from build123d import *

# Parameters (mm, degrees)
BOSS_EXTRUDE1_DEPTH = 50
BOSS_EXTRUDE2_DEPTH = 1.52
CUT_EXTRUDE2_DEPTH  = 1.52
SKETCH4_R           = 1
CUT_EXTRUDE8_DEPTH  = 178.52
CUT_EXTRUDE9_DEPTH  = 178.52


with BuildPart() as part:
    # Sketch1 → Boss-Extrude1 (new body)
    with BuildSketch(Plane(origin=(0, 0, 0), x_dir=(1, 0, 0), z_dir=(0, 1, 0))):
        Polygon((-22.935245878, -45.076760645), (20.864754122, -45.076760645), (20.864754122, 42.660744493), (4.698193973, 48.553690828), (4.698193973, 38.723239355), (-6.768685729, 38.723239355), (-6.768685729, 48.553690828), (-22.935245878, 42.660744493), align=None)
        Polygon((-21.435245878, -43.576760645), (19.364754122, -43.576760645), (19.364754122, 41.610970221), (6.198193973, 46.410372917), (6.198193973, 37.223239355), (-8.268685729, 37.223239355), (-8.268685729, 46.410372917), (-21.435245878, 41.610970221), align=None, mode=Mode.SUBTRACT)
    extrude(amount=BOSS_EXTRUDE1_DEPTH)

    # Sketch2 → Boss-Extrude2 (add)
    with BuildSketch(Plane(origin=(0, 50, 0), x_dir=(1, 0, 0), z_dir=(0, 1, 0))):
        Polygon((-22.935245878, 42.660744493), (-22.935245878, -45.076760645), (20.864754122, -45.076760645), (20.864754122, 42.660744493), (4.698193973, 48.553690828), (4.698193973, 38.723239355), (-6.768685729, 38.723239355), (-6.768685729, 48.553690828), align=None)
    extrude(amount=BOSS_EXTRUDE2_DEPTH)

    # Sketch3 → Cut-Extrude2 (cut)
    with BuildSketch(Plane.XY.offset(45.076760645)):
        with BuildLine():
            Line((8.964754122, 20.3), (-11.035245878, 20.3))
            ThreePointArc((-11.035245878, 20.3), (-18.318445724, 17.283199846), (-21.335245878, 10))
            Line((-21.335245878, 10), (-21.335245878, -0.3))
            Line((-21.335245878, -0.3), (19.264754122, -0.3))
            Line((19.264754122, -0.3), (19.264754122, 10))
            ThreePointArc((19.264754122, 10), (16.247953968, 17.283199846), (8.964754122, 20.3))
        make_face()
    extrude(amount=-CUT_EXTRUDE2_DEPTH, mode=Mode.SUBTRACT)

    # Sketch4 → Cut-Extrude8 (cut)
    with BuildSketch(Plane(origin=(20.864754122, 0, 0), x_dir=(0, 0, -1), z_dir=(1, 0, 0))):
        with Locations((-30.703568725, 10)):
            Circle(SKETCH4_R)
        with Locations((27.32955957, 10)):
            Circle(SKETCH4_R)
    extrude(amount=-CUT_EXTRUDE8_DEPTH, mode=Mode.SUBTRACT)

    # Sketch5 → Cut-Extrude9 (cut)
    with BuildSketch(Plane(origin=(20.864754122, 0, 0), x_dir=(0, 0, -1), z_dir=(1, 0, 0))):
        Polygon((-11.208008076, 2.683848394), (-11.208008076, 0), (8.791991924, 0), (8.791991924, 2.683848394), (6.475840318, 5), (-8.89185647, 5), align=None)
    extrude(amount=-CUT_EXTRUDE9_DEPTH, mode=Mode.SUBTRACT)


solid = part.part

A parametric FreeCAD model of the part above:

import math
import FreeCAD as App
import Part
import Sketcher

V = App.Vector
Q = App.Units.Quantity


def add_polygon(sketch, points):
    """Adds a closed chain of lines whose ends are joined by coincident constraints."""
    first, n = sketch.GeometryCount, len(points)
    for a, b in zip(points, points[1:] + points[:1]):
        sketch.addGeometry(Part.LineSegment(App.Vector(*a, 0), App.Vector(*b, 0)), False)
    for i in range(n):
        sketch.addConstraint(Sketcher.Constraint("Coincident", first + i, 2, first + (i + 1) % n, 1))

doc = App.newDocument("Part")
body = doc.addObject("PartDesign::Body", "Body")

sketch1 = body.newObject("Sketcher::SketchObject", "Sketch")
sketch1.AttachmentSupport = (doc.getObject("XZ_Plane"), [""])
sketch1.MapMode = "FlatFace"
add_polygon(sketch1, [(-23, 45), (21, 45), (21, -43), (5, -49), (5, -39), (-7, -39), (-7, -49), (-23, -43)])
add_polygon(sketch1, [(19, 44), (-21, 44), (-21, -42), (-8, -46), (-8, -37), (6, -37), (6, -46), (19, -42)])
sketch1.addConstraint([
    Sketcher.Constraint("Horizontal", 0),
    Sketcher.Constraint("Vertical", 1),
    Sketcher.Constraint("Vertical", 3),
    Sketcher.Constraint("Horizontal", 4),
    Sketcher.Constraint("Vertical", 5),
    Sketcher.Constraint("Vertical", 7),
    Sketcher.Constraint("Horizontal", 8),
    Sketcher.Constraint("Vertical", 9),
    Sketcher.Constraint("Vertical", 11),
    Sketcher.Constraint("Horizontal", 12),
    Sketcher.Constraint("Vertical", 13),
    Sketcher.Constraint("Vertical", 15),
    Sketcher.Constraint("Parallel", 6, 10),
    Sketcher.Constraint("Parallel", 2, 14),
    Sketcher.Constraint("Horizontal", 2, 2, 5, 2),
    Sketcher.Constraint("Horizontal", 1, 2, 6, 2),
    Sketcher.Constraint("Horizontal", 10, 2, 13, 2),
    Sketcher.Constraint("Horizontal", 9, 2, 14, 2),
    Sketcher.Constraint("Equal", 2, 6),
    Sketcher.Constraint("DistanceX", 0, 1, 0, 2, Q("43.8 mm")),
    Sketcher.Constraint("DistanceX", 8, 2, 8, 1, Q("40.8 mm")),
    Sketcher.Constraint("DistanceY", 3, 2, 0, 2, Q("83.8 mm")),
    Sketcher.Constraint("DistanceX", 7, 2, 8, 2, Q("1.5 mm")),
    Sketcher.Constraint("DistanceY", 8, 2, 7, 2, Q("1.5 mm")),
    Sketcher.Constraint("DistanceX", 10, 2, 5, 2, Q("1.5 mm")),
    Sketcher.Constraint("DistanceY", 4, 2, 11, 2, Q("1.5 mm")),
    Sketcher.Constraint("DistanceX", 4, 2, 4, 1, Q("11.46688 mm")),
    Sketcher.Constraint("DistanceY", 3, 1, 3, 2, Q("9.830451 mm")),
    Sketcher.Constraint("DistanceY", 9, 2, 9, 1, Q("85.187731 mm")),
    Sketcher.Constraint("DistanceY", 1, 2, 1, 1, Q("87.737505 mm")),
    Sketcher.Constraint("DistanceY", -1, 1, 0, 2, Q("45.076761 mm")),
    Sketcher.Constraint("DistanceX", -1, 1, 0, 2, Q("20.864754 mm")),
])
pad1 = body.newObject("PartDesign::Pad", "Pad")
pad1.Profile = sketch1
pad1.Length = 50
pad1.Reversed = True

sketch2 = body.newObject("Sketcher::SketchObject", "Sketch001")
sketch2.AttachmentSupport = (doc.getObject("XZ_Plane"), [""])
sketch2.MapMode = "FlatFace"
sketch2.AttachmentOffset = App.Placement(V(0, 0, -50), App.Rotation())
add_polygon(sketch2, [(-23, -43), (-23, 45), (21, 45), (21, -43), (5, -49), (5, -39), (-7, -39), (-7, -49)])
sketch2.addConstraint([
    Sketcher.Constraint("Vertical", 0),
    Sketcher.Constraint("Horizontal", 1),
    Sketcher.Constraint("Vertical", 2),
    Sketcher.Constraint("Vertical", 4),
    Sketcher.Constraint("Horizontal", 5),
    Sketcher.Constraint("Vertical", 6),
    Sketcher.Constraint("Horizontal", 3, 2, 6, 2),
    Sketcher.Constraint("Horizontal", 2, 2, 7, 2),
    Sketcher.Constraint("Equal", 3, 7),
    Sketcher.Constraint("DistanceX", 1, 1, 1, 2, Q("43.8 mm")),
    Sketcher.Constraint("DistanceY", 4, 2, 1, 2, Q("83.8 mm")),
    Sketcher.Constraint("DistanceX", 5, 2, 5, 1, Q("11.46688 mm")),
    Sketcher.Constraint("DistanceY", 4, 1, 4, 2, Q("9.830451 mm")),
    Sketcher.Constraint("DistanceY", 0, 1, 0, 2, Q("87.737505 mm")),
    Sketcher.Constraint("DistanceY", -1, 1, 0, 2, Q("45.076761 mm")),
    Sketcher.Constraint("DistanceX", 0, 2, -1, 1, Q("22.935246 mm")),
])
pad2 = body.newObject("PartDesign::Pad", "Pad001")
pad2.Profile = sketch2
pad2.Length = 1.52
pad2.Reversed = True

sketch3 = body.newObject("Sketcher::SketchObject", "Sketch002")
sketch3.AttachmentSupport = (doc.getObject("XY_Plane"), [""])
sketch3.MapMode = "FlatFace"
sketch3.AttachmentOffset = App.Placement(V(0, 0, 45.076761), App.Rotation())
sketch3.addGeometry([
    Part.LineSegment(V(9, 20, 0), V(-11, 20, 0)),
    Part.ArcOfCircle(Part.Circle(V(-11, 10, 0), V(0, 0, 1), 10), math.radians(90), math.radians(180)),
    Part.LineSegment(V(-21, 10, 0), V(-21, 0, 0)),
    Part.LineSegment(V(-21, 0, 0), V(19, 0, 0)),
    Part.LineSegment(V(19, 0, 0), V(19, 10, 0)),
    Part.ArcOfCircle(Part.Circle(V(9, 10, 0), V(0, 0, 1), 10), math.radians(0), math.radians(90)),
], False)
sketch3.addConstraint([
    Sketcher.Constraint("Tangent", 0, 2, 1, 1),
    Sketcher.Constraint("Tangent", 1, 2, 2, 1),
    Sketcher.Constraint("Coincident", 2, 2, 3, 1),
    Sketcher.Constraint("Coincident", 3, 2, 4, 1),
    Sketcher.Constraint("Tangent", 4, 2, 5, 1),
    Sketcher.Constraint("Tangent", 5, 2, 0, 1),
    Sketcher.Constraint("Horizontal", 0),
    Sketcher.Constraint("Vertical", 2),
    Sketcher.Constraint("Horizontal", 3),
    Sketcher.Constraint("Vertical", 4),
    Sketcher.Constraint("Equal", 1, 5),
    Sketcher.Constraint("Radius", 1, Q("10.3 mm")),
    Sketcher.Constraint("DistanceX", 0, 2, 0, 1, Q("20 mm")),
    Sketcher.Constraint("DistanceY", 2, 2, 2, 1, Q("10.3 mm")),
    Sketcher.Constraint("DistanceY", -1, 1, 1, 3, Q("10 mm")),
    Sketcher.Constraint("DistanceX", 1, 3, -1, 1, Q("11.035246 mm")),
])
pocket1 = body.newObject("PartDesign::Pocket", "Pocket")
pocket1.Profile = sketch3
pocket1.Length = 1.52

sketch4 = body.newObject("Sketcher::SketchObject", "Sketch003")
sketch4.AttachmentSupport = (doc.getObject("YZ_Plane"), [""])
sketch4.MapMode = "FlatFace"
sketch4.AttachmentOffset = App.Placement(V(0, 0, 20.864754), App.Rotation())
sketch4.addGeometry([
    Part.Circle(V(10, 30.7, 0), V(0, 0, 1), 1),
    Part.Circle(V(10, -27.3, 0), V(0, 0, 1), 1),
], False)
sketch4.addConstraint([
    Sketcher.Constraint("Equal", 0, 1),
    Sketcher.Constraint("Vertical", 0, 3, 1, 3),
    Sketcher.Constraint("Diameter", 0, Q("2 mm")),
    Sketcher.Constraint("DistanceX", -1, 1, 0, 3, Q("10 mm")),
    Sketcher.Constraint("DistanceY", -1, 1, 0, 3, Q("30.703569 mm")),
    Sketcher.Constraint("DistanceY", 1, 3, -1, 1, Q("27.32956 mm")),
])
pocket2 = body.newObject("PartDesign::Pocket", "Pocket001")
pocket2.Profile = sketch4
pocket2.Length = 178.52

sketch5 = body.newObject("Sketcher::SketchObject", "Sketch004")
sketch5.AttachmentSupport = (doc.getObject("YZ_Plane"), [""])
sketch5.MapMode = "FlatFace"
sketch5.AttachmentOffset = App.Placement(V(0, 0, 20.864754), App.Rotation())
add_polygon(sketch5, [(2.7, 11.2), (0, 11.2), (0, -8.8), (2.7, -8.8), (5, -6.5), (5, 8.9)])
sketch5.addConstraint([
    Sketcher.Constraint("Horizontal", 0),
    Sketcher.Constraint("Vertical", 1),
    Sketcher.Constraint("Horizontal", 2),
    Sketcher.Constraint("Vertical", 4),
    Sketcher.Constraint("PointOnObject", 0, 2, -2),
    Sketcher.Constraint("Perpendicular", 3, 5),
    Sketcher.Constraint("Vertical", 2, 2, 5, 2),
    Sketcher.Constraint("Equal", 3, 5),
    Sketcher.Constraint("DistanceY", 1, 2, 1, 1, Q("20 mm")),
    Sketcher.Constraint("DistanceX", -1, 1, 3, 2, Q("5 mm")),
    Sketcher.Constraint("DistanceX", 0, 2, 0, 1, Q("2.683848 mm")),
    Sketcher.Constraint("DistanceY", -1, 1, 0, 2, Q("11.208008 mm")),
])
pocket3 = body.newObject("PartDesign::Pocket", "Pocket002")
pocket3.Profile = sketch5
pocket3.Length = 178.52

doc.recompute()
